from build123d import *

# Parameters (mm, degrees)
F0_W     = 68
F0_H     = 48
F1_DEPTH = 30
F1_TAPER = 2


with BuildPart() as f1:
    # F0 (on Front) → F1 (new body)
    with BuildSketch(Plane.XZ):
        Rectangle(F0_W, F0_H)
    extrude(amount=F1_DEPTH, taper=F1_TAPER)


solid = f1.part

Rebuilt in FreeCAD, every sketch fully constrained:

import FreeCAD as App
import Part
import Sketcher
from FreeCAD import Vector
Q = App.Units.Quantity


def add_polygon(sketch, points):
    """Adds a closed chain of lines whose ends are joined by coincident constraints."""
    first, n = sketch.GeometryCount, len(points)
    for a, b in zip(points, points[1:] + points[:1]):
        sketch.addGeometry(Part.LineSegment(App.Vector(*a, 0), App.Vector(*b, 0)), False)
    for i in range(n):
        sketch.addConstraint(Sketcher.Constraint("Coincident", first + i, 2, first + (i + 1) % n, 1))

doc = App.newDocument("Part")
body = doc.addObject("PartDesign::Body", "Body")

# Sketch on XZ plane
sketch1 = body.newObject("Sketcher::SketchObject", "Sketch")
sketch1.AttachmentSupport = (doc.getObject("XZ_Plane"), [""])
sketch1.MapMode = "FlatFace"
add_polygon(sketch1, [(-34, 24), (-34, -24), (34, -24), (34, 24)])  # lines 0-3
sketch1.addConstraint([
    Sketcher.Constraint("Vertical", 0),
    Sketcher.Constraint("Horizontal", 1),
    Sketcher.Constraint("Vertical", 2),
    Sketcher.Constraint("Horizontal", 3),
    Sketcher.Constraint("Symmetric", 0, 2, 2, 2, -1, 1),
    Sketcher.Constraint("DistanceX", 1, 1, 1, 2, Q("68 mm")),
    Sketcher.Constraint("DistanceY", 0, 2, 0, 1, Q("48 mm")),
])
pad1 = body.newObject("PartDesign::Pad", "Pad")
pad1.Profile = sketch1
pad1.Length = 30
pad1.TaperAngle = -2

doc.recompute()
